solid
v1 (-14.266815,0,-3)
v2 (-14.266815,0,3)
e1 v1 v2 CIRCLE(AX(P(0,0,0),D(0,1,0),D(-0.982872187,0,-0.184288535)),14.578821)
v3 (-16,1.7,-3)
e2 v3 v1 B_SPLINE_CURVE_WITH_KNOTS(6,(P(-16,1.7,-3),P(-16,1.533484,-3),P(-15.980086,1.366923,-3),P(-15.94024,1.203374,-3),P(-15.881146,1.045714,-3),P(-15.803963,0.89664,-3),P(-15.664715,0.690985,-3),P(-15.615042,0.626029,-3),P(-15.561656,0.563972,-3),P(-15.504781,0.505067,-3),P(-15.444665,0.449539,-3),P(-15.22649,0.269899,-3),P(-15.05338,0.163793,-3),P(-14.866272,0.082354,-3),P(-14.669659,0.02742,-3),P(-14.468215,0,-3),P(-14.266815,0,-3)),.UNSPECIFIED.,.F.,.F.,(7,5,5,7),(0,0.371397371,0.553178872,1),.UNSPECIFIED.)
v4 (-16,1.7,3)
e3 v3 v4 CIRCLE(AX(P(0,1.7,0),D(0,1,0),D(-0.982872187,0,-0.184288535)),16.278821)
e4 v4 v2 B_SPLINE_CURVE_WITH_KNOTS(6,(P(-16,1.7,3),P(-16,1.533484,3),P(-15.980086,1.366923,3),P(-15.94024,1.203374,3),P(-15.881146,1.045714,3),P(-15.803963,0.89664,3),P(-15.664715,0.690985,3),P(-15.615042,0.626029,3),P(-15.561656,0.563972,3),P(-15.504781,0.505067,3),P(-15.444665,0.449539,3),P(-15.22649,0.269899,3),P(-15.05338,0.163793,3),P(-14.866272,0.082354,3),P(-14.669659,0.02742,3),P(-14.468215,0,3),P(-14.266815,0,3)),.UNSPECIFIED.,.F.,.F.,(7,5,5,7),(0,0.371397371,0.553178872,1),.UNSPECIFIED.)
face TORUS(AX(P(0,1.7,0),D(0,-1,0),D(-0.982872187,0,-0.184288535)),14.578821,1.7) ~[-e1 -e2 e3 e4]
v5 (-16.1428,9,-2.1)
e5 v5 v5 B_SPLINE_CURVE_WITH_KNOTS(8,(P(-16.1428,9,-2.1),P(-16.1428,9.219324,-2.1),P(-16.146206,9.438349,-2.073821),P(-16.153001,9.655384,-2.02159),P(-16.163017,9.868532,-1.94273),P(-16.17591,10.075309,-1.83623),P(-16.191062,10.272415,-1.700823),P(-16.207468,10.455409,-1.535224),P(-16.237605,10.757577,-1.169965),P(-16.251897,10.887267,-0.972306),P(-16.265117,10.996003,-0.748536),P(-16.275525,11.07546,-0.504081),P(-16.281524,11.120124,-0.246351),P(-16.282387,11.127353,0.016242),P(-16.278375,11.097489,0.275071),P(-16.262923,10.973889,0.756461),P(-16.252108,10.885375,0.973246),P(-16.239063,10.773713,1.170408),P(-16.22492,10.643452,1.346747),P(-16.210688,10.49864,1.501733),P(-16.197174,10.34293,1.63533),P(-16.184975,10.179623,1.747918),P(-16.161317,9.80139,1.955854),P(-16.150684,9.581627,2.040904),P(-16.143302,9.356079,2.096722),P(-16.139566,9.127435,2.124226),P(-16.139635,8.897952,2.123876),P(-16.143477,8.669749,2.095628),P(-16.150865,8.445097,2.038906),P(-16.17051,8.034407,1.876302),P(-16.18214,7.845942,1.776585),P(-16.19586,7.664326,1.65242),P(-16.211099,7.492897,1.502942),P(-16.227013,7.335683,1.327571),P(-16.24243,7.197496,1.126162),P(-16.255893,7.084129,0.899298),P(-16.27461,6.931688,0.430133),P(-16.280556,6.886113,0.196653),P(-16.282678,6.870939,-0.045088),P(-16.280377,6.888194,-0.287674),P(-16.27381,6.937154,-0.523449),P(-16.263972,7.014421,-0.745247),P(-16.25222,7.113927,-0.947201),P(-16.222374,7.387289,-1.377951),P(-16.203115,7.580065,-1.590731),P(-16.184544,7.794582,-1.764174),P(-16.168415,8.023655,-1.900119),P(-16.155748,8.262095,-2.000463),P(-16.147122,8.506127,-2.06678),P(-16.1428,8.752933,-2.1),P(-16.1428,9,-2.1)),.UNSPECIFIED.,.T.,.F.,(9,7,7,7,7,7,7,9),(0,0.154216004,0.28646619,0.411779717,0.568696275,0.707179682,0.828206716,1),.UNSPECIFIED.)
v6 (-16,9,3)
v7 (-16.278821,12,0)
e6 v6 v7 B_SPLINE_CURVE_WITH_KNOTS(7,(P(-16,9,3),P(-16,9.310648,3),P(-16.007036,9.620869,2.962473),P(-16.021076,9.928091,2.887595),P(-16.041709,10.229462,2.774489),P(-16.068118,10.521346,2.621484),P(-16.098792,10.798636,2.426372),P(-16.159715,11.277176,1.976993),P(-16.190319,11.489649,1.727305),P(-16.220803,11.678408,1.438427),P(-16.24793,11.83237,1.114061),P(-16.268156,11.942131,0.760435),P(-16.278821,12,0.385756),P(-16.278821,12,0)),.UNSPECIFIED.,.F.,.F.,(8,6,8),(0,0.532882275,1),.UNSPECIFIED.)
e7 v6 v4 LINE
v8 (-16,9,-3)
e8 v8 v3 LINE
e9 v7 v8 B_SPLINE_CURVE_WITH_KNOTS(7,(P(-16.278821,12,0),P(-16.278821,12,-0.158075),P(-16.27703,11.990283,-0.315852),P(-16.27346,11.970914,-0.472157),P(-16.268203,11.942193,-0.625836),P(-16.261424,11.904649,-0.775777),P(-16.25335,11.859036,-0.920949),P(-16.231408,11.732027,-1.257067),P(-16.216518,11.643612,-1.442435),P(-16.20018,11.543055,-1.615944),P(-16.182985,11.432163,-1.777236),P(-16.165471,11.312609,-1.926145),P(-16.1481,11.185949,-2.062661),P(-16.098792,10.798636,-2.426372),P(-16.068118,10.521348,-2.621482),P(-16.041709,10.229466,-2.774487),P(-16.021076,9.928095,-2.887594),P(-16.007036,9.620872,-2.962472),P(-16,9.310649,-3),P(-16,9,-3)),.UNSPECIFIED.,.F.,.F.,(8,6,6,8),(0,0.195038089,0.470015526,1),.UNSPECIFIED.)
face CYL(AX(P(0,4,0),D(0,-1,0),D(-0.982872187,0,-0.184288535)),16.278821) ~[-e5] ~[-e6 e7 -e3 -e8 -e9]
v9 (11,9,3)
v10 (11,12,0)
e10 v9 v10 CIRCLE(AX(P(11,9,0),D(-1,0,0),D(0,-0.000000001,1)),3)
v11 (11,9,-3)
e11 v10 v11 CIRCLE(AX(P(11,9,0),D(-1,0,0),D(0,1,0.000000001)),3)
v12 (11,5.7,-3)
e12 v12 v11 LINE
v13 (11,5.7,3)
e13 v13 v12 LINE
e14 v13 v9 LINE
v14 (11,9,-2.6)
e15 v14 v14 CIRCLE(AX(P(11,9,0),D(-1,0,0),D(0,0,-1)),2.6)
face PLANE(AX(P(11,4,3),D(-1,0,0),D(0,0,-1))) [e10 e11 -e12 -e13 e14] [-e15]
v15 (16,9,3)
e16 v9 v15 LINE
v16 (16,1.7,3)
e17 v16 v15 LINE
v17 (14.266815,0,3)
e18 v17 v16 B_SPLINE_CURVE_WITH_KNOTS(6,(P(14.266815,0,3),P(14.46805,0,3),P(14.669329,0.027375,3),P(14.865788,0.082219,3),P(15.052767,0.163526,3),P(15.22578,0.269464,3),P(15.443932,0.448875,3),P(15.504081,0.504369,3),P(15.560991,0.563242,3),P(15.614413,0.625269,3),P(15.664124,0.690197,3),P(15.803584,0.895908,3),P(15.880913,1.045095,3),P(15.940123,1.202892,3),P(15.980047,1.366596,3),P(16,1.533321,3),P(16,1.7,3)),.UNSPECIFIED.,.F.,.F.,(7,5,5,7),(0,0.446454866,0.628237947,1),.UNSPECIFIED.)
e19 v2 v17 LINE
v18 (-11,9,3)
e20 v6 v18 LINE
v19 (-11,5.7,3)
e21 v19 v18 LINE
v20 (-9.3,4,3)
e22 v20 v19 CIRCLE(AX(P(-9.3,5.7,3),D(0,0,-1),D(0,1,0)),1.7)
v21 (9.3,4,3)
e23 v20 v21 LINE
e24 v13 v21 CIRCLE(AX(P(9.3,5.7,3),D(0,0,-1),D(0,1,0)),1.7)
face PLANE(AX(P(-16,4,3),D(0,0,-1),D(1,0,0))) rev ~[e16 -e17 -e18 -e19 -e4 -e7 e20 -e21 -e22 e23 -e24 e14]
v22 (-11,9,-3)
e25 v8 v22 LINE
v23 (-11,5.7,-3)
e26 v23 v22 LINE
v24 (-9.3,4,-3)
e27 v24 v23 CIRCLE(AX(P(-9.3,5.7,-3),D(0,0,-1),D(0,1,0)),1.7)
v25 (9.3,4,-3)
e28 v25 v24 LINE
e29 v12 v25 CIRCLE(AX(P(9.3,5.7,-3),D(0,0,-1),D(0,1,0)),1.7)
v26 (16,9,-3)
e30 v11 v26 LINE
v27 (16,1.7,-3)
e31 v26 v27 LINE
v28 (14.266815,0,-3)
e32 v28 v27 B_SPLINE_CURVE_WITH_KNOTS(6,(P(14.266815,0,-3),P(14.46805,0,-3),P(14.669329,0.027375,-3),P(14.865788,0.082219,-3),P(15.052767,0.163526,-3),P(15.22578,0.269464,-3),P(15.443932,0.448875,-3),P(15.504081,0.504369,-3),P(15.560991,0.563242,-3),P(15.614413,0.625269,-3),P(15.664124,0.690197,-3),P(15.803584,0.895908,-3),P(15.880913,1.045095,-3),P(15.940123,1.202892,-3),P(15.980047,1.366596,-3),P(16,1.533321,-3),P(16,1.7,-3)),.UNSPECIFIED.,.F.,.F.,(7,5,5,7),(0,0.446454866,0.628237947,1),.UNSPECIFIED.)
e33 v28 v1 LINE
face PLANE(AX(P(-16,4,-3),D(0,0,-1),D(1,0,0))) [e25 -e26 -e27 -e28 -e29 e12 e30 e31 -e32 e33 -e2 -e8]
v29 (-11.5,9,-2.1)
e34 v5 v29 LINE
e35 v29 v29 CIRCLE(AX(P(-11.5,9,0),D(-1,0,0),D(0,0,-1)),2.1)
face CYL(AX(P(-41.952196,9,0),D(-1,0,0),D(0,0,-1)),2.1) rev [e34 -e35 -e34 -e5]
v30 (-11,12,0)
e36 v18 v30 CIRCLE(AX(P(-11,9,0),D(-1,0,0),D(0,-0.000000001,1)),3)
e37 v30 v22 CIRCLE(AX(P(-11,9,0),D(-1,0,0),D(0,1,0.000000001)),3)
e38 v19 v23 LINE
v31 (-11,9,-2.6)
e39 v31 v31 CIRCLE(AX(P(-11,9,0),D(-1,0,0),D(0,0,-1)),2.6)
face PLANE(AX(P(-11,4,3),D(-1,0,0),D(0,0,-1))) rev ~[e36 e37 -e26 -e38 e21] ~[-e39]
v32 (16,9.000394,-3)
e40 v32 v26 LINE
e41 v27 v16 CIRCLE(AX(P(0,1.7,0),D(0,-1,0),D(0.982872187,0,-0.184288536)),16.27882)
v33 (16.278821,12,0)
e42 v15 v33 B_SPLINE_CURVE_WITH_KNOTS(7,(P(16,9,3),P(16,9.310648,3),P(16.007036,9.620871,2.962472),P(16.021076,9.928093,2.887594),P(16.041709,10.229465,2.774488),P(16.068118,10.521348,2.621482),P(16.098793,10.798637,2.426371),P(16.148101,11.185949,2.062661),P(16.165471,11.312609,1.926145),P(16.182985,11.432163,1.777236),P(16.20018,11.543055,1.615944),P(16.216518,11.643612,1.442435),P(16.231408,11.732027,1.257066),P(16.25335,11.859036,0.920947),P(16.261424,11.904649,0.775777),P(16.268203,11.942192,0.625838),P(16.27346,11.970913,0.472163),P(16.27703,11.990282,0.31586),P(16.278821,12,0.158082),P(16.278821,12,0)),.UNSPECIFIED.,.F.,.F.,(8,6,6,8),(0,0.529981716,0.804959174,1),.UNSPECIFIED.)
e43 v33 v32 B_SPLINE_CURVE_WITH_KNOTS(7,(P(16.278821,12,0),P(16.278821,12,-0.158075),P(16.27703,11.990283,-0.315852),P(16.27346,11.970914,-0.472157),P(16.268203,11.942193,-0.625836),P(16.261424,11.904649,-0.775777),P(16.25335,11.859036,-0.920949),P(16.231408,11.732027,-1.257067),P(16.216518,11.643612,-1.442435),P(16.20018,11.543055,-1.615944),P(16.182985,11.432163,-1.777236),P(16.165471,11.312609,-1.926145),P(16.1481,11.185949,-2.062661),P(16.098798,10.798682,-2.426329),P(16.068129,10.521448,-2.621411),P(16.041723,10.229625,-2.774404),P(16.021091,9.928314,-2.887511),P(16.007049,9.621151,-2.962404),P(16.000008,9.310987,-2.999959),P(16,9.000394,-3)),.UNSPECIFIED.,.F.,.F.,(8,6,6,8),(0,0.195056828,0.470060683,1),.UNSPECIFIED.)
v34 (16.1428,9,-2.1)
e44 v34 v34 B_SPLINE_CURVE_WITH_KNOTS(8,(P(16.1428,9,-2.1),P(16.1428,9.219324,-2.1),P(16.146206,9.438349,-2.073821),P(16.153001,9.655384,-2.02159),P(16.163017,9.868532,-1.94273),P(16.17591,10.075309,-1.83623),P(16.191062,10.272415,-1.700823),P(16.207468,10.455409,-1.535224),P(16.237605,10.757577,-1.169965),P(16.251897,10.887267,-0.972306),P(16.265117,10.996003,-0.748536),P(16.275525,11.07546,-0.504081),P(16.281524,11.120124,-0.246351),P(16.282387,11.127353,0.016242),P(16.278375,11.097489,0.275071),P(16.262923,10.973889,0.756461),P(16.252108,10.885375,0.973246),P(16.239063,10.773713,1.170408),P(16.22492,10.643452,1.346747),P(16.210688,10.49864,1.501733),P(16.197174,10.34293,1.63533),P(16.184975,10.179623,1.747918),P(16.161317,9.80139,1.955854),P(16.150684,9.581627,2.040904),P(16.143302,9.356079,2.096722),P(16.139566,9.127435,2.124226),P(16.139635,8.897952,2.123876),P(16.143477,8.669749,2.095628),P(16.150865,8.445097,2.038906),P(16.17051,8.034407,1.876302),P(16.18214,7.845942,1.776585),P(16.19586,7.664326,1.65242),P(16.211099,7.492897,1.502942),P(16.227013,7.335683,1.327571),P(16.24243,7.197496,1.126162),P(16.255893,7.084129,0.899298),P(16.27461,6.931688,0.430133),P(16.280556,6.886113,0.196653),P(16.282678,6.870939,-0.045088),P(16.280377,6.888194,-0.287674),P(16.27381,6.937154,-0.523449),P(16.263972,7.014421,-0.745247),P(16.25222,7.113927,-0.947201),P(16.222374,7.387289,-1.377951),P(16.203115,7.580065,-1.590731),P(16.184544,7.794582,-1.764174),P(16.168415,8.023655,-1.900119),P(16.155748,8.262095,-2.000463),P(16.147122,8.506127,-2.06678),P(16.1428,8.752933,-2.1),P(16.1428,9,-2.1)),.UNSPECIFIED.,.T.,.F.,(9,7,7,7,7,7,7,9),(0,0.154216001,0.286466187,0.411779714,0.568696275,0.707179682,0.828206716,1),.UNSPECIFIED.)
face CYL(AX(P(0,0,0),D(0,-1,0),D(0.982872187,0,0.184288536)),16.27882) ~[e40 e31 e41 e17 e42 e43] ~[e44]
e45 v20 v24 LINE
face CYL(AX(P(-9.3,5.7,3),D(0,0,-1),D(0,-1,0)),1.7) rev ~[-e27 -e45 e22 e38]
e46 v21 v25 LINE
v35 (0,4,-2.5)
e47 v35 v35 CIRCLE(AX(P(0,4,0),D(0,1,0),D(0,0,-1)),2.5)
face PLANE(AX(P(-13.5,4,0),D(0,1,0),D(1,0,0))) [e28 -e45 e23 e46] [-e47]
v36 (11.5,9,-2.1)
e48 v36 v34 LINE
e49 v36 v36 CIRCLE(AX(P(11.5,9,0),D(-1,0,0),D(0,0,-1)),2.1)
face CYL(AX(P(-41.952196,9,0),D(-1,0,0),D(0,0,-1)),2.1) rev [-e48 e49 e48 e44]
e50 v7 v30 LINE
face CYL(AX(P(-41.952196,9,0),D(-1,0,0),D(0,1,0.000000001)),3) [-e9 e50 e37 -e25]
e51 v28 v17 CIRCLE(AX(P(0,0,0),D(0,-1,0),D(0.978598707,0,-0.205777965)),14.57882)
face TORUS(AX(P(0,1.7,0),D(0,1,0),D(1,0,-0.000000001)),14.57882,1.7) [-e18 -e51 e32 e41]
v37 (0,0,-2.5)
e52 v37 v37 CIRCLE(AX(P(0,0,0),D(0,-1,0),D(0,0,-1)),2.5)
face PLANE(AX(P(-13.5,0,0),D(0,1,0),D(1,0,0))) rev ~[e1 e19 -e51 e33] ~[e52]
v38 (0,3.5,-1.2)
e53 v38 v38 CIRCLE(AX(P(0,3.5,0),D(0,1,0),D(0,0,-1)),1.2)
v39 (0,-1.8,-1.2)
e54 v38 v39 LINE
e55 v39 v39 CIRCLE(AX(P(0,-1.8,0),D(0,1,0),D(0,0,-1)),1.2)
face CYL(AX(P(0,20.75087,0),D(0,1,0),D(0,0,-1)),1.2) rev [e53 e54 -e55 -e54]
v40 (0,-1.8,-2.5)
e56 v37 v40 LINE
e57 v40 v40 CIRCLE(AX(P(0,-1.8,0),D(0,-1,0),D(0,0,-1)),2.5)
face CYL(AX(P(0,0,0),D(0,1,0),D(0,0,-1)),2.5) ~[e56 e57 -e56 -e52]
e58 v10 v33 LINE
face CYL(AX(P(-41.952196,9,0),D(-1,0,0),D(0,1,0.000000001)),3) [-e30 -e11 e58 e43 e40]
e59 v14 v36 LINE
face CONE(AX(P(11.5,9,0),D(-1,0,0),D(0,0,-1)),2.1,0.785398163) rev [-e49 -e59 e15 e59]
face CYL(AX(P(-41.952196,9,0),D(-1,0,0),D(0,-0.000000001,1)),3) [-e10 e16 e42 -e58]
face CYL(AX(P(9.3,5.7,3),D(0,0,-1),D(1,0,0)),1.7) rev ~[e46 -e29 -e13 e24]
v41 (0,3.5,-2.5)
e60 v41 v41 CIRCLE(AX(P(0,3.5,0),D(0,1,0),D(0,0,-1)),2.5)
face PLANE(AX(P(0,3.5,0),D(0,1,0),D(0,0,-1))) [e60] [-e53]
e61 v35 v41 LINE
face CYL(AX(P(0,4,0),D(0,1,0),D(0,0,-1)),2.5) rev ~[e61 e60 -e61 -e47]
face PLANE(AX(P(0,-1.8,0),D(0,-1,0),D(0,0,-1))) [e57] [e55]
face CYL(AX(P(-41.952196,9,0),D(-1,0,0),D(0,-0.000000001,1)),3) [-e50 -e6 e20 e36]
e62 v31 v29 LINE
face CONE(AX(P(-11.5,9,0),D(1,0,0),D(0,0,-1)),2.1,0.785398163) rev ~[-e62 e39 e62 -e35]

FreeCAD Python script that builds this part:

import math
import FreeCAD as App
import Part
import Sketcher


def edges_at(feature, points):
    """Names of the edges that pass closest to the given points."""
    edges = feature.Shape.Edges
    near = lambda p: min(range(len(edges)), key=lambda i: edges[i].distToShape(Part.Vertex(*p))[0])
    return sorted({f"Edge{near(p) + 1}" for p in points})

doc = App.newDocument("Part")
body = doc.addObject("PartDesign::Body", "Body")

# Sketch on XZ plane
sketch1 = body.newObject("Sketcher::SketchObject", "Sketch")
sketch1.AttachmentSupport = (doc.getObject("XZ_Plane"), [""])
sketch1.MapMode = "FlatFace"
sketch1.addGeometry(Part.LineSegment(App.Vector(-16, 3, 0), App.Vector(16, 3, 0)), False)
sketch1.addGeometry(Part.ArcOfCircle(Part.Circle(App.Vector(0, 0, 0), App.Vector(0, 0, 1), 16.3), math.radians(0), math.radians(10.62)), False)
sketch1.addGeometry(Part.ArcOfCircle(Part.Circle(App.Vector(0, 0, 0), App.Vector(0, 0, 1), 16.3), math.radians(-10.62), math.radians(0)), False)
sketch1.addGeometry(Part.LineSegment(App.Vector(16, -3, 0), App.Vector(-16, -3, 0)), False)
sketch1.addGeometry(Part.ArcOfCircle(Part.Circle(App.Vector(0, 0, 0), App.Vector(0, 0, 1), 16.3), math.radians(169), math.radians(191)), False)
sketch1.addConstraint(Sketcher.Constraint("Coincident", 0, 2, 1, 2))
sketch1.addConstraint(Sketcher.Constraint("Tangent", 1, 1, 2, 2))
sketch1.addConstraint(Sketcher.Constraint("Coincident", 2, 1, 3, 1))
sketch1.addConstraint(Sketcher.Constraint("Coincident", 3, 2, 4, 2))
sketch1.addConstraint(Sketcher.Constraint("Coincident", 4, 1, 0, 1))
sketch1.addConstraint(Sketcher.Constraint("Horizontal", 0))
sketch1.addConstraint(Sketcher.Constraint("Horizontal", 3))
sketch1.addConstraint(Sketcher.Constraint("Coincident", 1, 3, -1, 1))
sketch1.addConstraint(Sketcher.Constraint("Coincident", 4, 3, -1, 1))
sketch1.addConstraint(Sketcher.Constraint("Equal", 1, 2))
sketch1.addConstraint(Sketcher.Constraint("Equal", 2, 4))
sketch1.addConstraint(Sketcher.Constraint("PointOnObject", 1, 1, -1))
sketch1.addConstraint(Sketcher.Constraint("Vertical", 0, 2, 2, 1))
sketch1.addConstraint(Sketcher.Constraint("DistanceX", 0, 1, 0, 2, 32.0))
sketch1.addConstraint(Sketcher.Constraint("DistanceY", -1, 1, 0, 2, 3.0))
pad1 = body.newObject("PartDesign::Pad", "Pad")
pad1.Profile = sketch1
pad1.Length = 4
pad1.Reversed = True

# Sketch on XZ plane
sketch2 = body.newObject("Sketcher::SketchObject", "Sketch001")
sketch2.AttachmentSupport = (doc.getObject("XZ_Plane"), [""])
sketch2.MapMode = "FlatFace"
sketch2.AttachmentOffset = App.Placement(App.Vector(0, 0, -4), App.Rotation())
sketch2.addGeometry(Part.LineSegment(App.Vector(-16, 3, 0), App.Vector(-11, 3, 0)), False)
sketch2.addGeometry(Part.LineSegment(App.Vector(-11, 3, 0), App.Vector(-11, -3, 0)), False)
sketch2.addGeometry(Part.LineSegment(App.Vector(-11, -3, 0), App.Vector(-16, -3, 0)), False)
sketch2.addGeometry(Part.ArcOfCircle(Part.Circle(App.Vector(0, 0, 0), App.Vector(0, 0, 1), 16.3), math.radians(169), math.radians(191)), False)
sketch2.addGeometry(Part.LineSegment(App.Vector(11, -3, 0), App.Vector(11, 3, 0)), False)
sketch2.addGeometry(Part.LineSegment(App.Vector(11, 3, 0), App.Vector(16, 3, 0)), False)
sketch2.addGeometry(Part.ArcOfCircle(Part.Circle(App.Vector(0, 0, 0), App.Vector(0, 0, 1), 16.3), math.radians(0), math.radians(10.62)), False)
sketch2.addGeometry(Part.ArcOfCircle(Part.Circle(App.Vector(0, 0, 0), App.Vector(0, 0, 1), 16.3), math.radians(-10.62), math.radians(0)), False)
sketch2.addGeometry(Part.LineSegment(App.Vector(16, -3, 0), App.Vector(11, -3, 0)), False)
sketch2.addConstraint(Sketcher.Constraint("Coincident", 0, 2, 1, 1))
sketch2.addConstraint(Sketcher.Constraint("Coincident", 1, 2, 2, 1))
sketch2.addConstraint(Sketcher.Constraint("Coincident", 2, 2, 3, 2))
sketch2.addConstraint(Sketcher.Constraint("Coincident", 3, 1, 0, 1))
sketch2.addConstraint(Sketcher.Constraint("Coincident", 4, 2, 5, 1))
sketch2.addConstraint(Sketcher.Constraint("Coincident", 5, 2, 6, 2))
sketch2.addConstraint(Sketcher.Constraint("Tangent", 6, 1, 7, 2))
sketch2.addConstraint(Sketcher.Constraint("Coincident", 7, 1, 8, 1))
sketch2.addConstraint(Sketcher.Constraint("Coincident", 8, 2, 4, 1))
sketch2.addConstraint(Sketcher.Constraint("Horizontal", 0))
sketch2.addConstraint(Sketcher.Constraint("Vertical", 1))
sketch2.addConstraint(Sketcher.Constraint("Horizontal", 2))
sketch2.addConstraint(Sketcher.Constraint("Vertical", 4))
sketch2.addConstraint(Sketcher.Constraint("Horizontal", 5))
sketch2.addConstraint(Sketcher.Constraint("Horizontal", 8))
sketch2.addConstraint(Sketcher.Constraint("Coincident", 3, 3, -1, 1))
sketch2.addConstraint(Sketcher.Constraint("Coincident", 6, 3, -1, 1))
sketch2.addConstraint(Sketcher.Constraint("Equal", 3, 6))
sketch2.addConstraint(Sketcher.Constraint("Equal", 6, 7))
sketch2.addConstraint(Sketcher.Constraint("Symmetric", 1, 2, 4, 2, -1, 1))
sketch2.addConstraint(Sketcher.Constraint("PointOnObject", 6, 1, -1))
sketch2.addConstraint(Sketcher.Constraint("Horizontal", 3, 1, 4, 2))
sketch2.addConstraint(Sketcher.Constraint("Horizontal", 2, 2, 7, 1))
sketch2.addConstraint(Sketcher.Constraint("DistanceX", 0, 1, 0, 2, 5.0))
sketch2.addConstraint(Sketcher.Constraint("DistanceY", 1, 2, 1, 1, 6.0))
sketch2.addConstraint(Sketcher.Constraint("DistanceX", 0, 2, -1, 1, 11.0))
pad2 = body.newObject("PartDesign::Pad", "Pad001")
pad2.Profile = sketch2
pad2.Length = 8
pad2.Reversed = True

# Sketch on YZ plane
sketch3 = body.newObject("Sketcher::SketchObject", "Sketch002")
sketch3.AttachmentSupport = (doc.getObject("YZ_Plane"), [""])
sketch3.MapMode = "FlatFace"
sketch3.AttachmentOffset = App.Placement(App.Vector(0, 0, -11), App.Rotation())
sketch3.addGeometry(Part.LineSegment(App.Vector(12, -3, 0), App.Vector(12, 0, 0)), False)
sketch3.addGeometry(Part.ArcOfCircle(Part.Circle(App.Vector(9, 0, 0), App.Vector(0, 0, 1), 3), math.radians(-90), math.radians(0)), False)
sketch3.addGeometry(Part.LineSegment(App.Vector(9, -3, 0), App.Vector(12, -3, 0)), False)
sketch3.addGeometry(Part.LineSegment(App.Vector(12, 3, 0), App.Vector(9, 3, 0)), False)
sketch3.addGeometry(Part.ArcOfCircle(Part.Circle(App.Vector(9, 0, 0), App.Vector(0, 0, 1), 3), math.radians(0), math.radians(90)), False)
sketch3.addGeometry(Part.LineSegment(App.Vector(12, 0, 0), App.Vector(12, 3, 0)), False)
sketch3.addGeometry(Part.Circle(App.Vector(9, 0, 0), App.Vector(0, 0, 1), 2.1), False)
sketch3.addConstraint(Sketcher.Constraint("Tangent", 0, 2, 1, 2))
sketch3.addConstraint(Sketcher.Constraint("Tangent", 1, 1, 2, 1))
sketch3.addConstraint(Sketcher.Constraint("Coincident", 2, 2, 0, 1))
sketch3.addConstraint(Sketcher.Constraint("Tangent", 3, 2, 4, 2))
sketch3.addConstraint(Sketcher.Constraint("Tangent", 4, 1, 5, 1))
sketch3.addConstraint(Sketcher.Constraint("Coincident", 5, 2, 3, 1))
sketch3.addConstraint(Sketcher.Constraint("Vertical", 0))
sketch3.addConstraint(Sketcher.Constraint("Horizontal", 2))
sketch3.addConstraint(Sketcher.Constraint("Horizontal", 3))
sketch3.addConstraint(Sketcher.Constraint("Vertical", 5))
sketch3.addConstraint(Sketcher.Constraint("Coincident", 4, 3, 1, 3))
sketch3.addConstraint(Sketcher.Constraint("Coincident", 6, 3, 1, 3))
sketch3.addConstraint(Sketcher.Constraint("Equal", 1, 4))
sketch3.addConstraint(Sketcher.Constraint("PointOnObject", 1, 3, -1))
sketch3.addConstraint(Sketcher.Constraint("Radius", 1, 3.0))
sketch3.addConstraint(Sketcher.Constraint("Diameter", 6, 4.2))
sketch3.addConstraint(Sketcher.Constraint("DistanceX", -1, 1, 1, 3, 9.0))
pocket1 = body.newObject("PartDesign::Pocket", "Pocket")
pocket1.Profile = sketch3
pocket1.Type = "ThroughAll"
pocket1.Midplane = True

# Sketch on XZ plane
sketch4 = body.newObject("Sketcher::SketchObject", "Sketch003")
sketch4.AttachmentSupport = (doc.getObject("XZ_Plane"), [""])
sketch4.MapMode = "FlatFace"
sketch4.addGeometry(Part.Circle(App.Vector(0, 0, 0), App.Vector(0, 0, 1), 2.5), False)
sketch4.addConstraint(Sketcher.Constraint("Coincident", 0, 3, -1, 1))
sketch4.addConstraint(Sketcher.Constraint("Diameter", 0, 5.0))
pad3 = body.newObject("PartDesign::Pad", "Pad002")
pad3.Profile = sketch4
pad3.Length = 1.8

# Sketch on XZ plane
sketch5 = body.newObject("Sketcher::SketchObject", "Sketch004")
sketch5.AttachmentSupport = (doc.getObject("XZ_Plane"), [""])
sketch5.MapMode = "FlatFace"
sketch5.AttachmentOffset = App.Placement(App.Vector(0, 0, 1.8), App.Rotation())
sketch5.addGeometry(Part.Circle(App.Vector(0, 0, 0), App.Vector(0, 0, 1), 1.2), False)
sketch5.addConstraint(Sketcher.Constraint("Coincident", 0, 3, -1, 1))
sketch5.addConstraint(Sketcher.Constraint("Diameter", 0, 2.4))
pocket2 = body.newObject("PartDesign::Pocket", "Pocket001")
pocket2.Profile = sketch5
pocket2.Type = "ThroughAll"
pocket2.Midplane = True

# Sketch on XZ plane
sketch6 = body.newObject("Sketcher::SketchObject", "Sketch005")
sketch6.AttachmentSupport = (doc.getObject("XZ_Plane"), [""])
sketch6.MapMode = "FlatFace"
sketch6.AttachmentOffset = App.Placement(App.Vector(0, 0, -4), App.Rotation())
sketch6.addGeometry(Part.Circle(App.Vector(0, 0, 0), App.Vector(0, 0, 1), 2.5), False)
sketch6.addConstraint(Sketcher.Constraint("Coincident", 0, 3, -1, 1))
sketch6.addConstraint(Sketcher.Constraint("Diameter", 0, 5.0))
pocket3 = body.newObject("PartDesign::Pocket", "Pocket002")
pocket3.Profile = sketch6
pocket3.Length = 0.5
pocket3.Reversed = True
doc.recompute()

chamfer = body.newObject("PartDesign::Chamfer", "Chamfer")
chamfer.Base = (pocket3, edges_at(pocket3, [(11, 9, 2.1), (-11, 9, 2.1)]))
chamfer.Size = 0.5
doc.recompute()

fillet = body.newObject("PartDesign::Fillet", "Fillet")
fillet.Base = (chamfer, edges_at(chamfer, [
    (-11, 4, 0),
    (11, 4, 0),
    (-16.279, 0, 0),
    (16.209, 0, 1.506),
]))
fillet.Radius = 1.7

doc.recompute()
